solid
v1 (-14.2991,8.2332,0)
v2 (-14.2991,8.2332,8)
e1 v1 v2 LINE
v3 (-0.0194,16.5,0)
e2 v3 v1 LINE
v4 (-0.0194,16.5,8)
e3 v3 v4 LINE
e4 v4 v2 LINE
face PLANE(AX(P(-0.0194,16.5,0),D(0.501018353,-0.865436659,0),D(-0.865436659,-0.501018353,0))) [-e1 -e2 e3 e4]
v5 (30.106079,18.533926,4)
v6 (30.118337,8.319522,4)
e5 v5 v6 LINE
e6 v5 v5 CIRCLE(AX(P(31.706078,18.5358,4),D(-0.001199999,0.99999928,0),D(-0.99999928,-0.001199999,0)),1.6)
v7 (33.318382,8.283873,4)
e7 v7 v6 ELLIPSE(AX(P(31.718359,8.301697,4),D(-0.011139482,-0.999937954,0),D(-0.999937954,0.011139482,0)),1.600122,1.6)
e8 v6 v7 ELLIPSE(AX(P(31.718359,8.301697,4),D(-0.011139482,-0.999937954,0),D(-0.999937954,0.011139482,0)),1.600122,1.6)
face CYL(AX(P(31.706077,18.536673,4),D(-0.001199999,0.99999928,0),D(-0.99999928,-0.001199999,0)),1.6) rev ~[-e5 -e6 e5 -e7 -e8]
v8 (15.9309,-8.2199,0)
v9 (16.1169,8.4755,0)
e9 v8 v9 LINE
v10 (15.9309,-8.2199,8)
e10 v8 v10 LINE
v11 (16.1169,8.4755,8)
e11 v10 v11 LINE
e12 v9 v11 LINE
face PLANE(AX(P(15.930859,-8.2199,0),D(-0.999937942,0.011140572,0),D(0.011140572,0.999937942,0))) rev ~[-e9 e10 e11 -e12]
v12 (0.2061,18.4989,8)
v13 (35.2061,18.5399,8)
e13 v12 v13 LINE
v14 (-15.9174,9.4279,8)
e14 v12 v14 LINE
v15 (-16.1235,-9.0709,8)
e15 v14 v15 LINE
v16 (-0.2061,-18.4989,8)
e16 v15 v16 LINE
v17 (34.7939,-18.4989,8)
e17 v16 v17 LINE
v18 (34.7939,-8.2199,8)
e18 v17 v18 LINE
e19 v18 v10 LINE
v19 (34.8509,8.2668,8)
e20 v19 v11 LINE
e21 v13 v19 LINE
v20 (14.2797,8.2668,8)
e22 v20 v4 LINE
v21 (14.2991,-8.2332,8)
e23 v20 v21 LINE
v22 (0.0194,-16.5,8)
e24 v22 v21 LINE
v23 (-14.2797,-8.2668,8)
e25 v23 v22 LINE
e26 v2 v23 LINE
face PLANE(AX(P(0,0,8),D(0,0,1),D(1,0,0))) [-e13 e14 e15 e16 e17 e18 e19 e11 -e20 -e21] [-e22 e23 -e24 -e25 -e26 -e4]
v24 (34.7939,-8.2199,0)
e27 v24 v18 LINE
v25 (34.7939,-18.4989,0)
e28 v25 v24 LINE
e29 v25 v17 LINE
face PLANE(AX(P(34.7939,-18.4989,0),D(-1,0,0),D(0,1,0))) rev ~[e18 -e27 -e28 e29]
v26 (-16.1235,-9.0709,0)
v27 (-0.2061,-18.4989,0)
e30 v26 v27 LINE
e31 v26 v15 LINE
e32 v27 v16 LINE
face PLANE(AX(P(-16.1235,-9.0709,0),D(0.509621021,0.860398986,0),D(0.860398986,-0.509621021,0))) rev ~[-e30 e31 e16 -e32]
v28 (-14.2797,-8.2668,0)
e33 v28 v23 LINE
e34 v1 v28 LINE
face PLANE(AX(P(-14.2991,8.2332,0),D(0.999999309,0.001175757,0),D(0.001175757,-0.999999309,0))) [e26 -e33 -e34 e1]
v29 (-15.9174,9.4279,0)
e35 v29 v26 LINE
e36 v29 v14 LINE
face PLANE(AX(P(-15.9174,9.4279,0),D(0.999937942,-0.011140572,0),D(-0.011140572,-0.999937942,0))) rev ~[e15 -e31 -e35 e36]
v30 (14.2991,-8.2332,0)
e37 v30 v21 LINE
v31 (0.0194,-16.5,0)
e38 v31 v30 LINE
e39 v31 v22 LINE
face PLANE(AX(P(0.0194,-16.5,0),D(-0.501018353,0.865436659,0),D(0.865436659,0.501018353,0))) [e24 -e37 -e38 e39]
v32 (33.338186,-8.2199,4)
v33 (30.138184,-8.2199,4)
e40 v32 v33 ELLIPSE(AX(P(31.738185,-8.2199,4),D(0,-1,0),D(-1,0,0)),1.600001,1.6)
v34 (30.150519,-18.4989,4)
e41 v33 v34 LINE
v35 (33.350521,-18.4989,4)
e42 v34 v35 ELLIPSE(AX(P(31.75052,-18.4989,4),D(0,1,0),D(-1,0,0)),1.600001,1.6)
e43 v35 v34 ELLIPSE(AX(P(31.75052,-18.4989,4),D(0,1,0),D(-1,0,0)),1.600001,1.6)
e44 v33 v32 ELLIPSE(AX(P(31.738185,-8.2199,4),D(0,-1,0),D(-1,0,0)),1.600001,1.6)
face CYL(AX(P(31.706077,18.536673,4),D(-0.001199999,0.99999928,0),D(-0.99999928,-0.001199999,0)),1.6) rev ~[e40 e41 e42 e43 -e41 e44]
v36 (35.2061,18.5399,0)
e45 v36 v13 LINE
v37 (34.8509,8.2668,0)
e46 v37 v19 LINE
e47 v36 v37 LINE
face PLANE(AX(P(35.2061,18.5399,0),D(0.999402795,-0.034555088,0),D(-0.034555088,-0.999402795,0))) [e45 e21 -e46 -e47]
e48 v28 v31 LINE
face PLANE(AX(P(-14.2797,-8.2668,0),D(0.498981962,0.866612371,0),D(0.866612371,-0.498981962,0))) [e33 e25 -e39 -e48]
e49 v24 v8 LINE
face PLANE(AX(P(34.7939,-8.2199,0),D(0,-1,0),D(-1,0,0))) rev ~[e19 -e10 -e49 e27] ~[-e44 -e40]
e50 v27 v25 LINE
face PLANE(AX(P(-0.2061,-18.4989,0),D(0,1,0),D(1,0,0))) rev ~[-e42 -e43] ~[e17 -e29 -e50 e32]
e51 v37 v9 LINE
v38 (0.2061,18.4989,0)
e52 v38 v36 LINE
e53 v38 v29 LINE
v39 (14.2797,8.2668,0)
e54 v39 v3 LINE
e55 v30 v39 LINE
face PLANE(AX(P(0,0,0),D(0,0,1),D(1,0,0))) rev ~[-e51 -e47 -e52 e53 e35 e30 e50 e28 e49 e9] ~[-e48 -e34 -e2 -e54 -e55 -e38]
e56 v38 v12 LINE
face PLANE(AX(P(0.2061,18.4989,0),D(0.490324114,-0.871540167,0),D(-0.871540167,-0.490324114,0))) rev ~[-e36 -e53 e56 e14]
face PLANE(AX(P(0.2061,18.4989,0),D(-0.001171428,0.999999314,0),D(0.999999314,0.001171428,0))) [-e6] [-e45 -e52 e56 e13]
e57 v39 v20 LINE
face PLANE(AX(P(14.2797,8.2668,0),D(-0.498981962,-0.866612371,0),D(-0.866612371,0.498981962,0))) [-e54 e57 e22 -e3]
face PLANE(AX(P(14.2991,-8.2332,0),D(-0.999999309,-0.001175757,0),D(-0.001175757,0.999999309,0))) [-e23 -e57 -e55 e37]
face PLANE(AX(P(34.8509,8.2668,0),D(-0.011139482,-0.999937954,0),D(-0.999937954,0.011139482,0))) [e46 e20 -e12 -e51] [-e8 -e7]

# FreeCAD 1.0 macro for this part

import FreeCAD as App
import Part
import Sketcher

V = App.Vector
Q = App.Units.Quantity

doc = App.newDocument("Part")
body = doc.addObject("PartDesign::Body", "Body")

sketch1 = doc.addObject("Sketcher::SketchObject", "Sketch")
body.addObject(sketch1)
sketch1.AttachmentSupport = (doc.XY_Plane, [""])
sketch1.MapMode = "FlatFace"
sketch1.addGeometry([
    Part.LineSegment(V(16, -8, 0), V(16, 8, 0)),
    Part.LineSegment(V(16, 8, 0), V(35, 8, 0)),
    Part.LineSegment(V(35, 8, 0), V(35, 19, 0)),
    Part.LineSegment(V(35, 19, 0), V(0, 18, 0)),
    Part.LineSegment(V(0, 18, 0), V(-16, 9, 0)),
    Part.LineSegment(V(-16, 9, 0), V(-16, -9, 0)),
    Part.LineSegment(V(-16, -9, 0), V(0, -18, 0)),
    Part.LineSegment(V(0, -18, 0), V(35, -18, 0)),
    Part.LineSegment(V(35, -18, 0), V(35, -8, 0)),
    Part.LineSegment(V(35, -8, 0), V(16, -8, 0)),
    Part.LineSegment(V(-14, 8, 0), V(0, 16, 0)),
    Part.LineSegment(V(0, 16, 0), V(14, 8, 0)),
    Part.LineSegment(V(14, 8, 0), V(14, -8, 0)),
    Part.LineSegment(V(14, -8, 0), V(0, -16, 0)),
    Part.LineSegment(V(0, -16, 0), V(-14, -8, 0)),
    Part.LineSegment(V(-14, -8, 0), V(-14, 8, 0)),
], False)
sketch1.addConstraint([
    Sketcher.Constraint("Coincident", 0, 2, 1, 1),
    Sketcher.Constraint("Coincident", 1, 2, 2, 1),
    Sketcher.Constraint("Coincident", 2, 2, 3, 1),
    Sketcher.Constraint("Coincident", 3, 2, 4, 1),
    Sketcher.Constraint("Coincident", 4, 2, 5, 1),
    Sketcher.Constraint("Coincident", 5, 2, 6, 1),
    Sketcher.Constraint("Coincident", 6, 2, 7, 1),
    Sketcher.Constraint("Coincident", 7, 2, 8, 1),
    Sketcher.Constraint("Coincident", 8, 2, 9, 1),
    Sketcher.Constraint("Coincident", 9, 2, 0, 1),
    Sketcher.Constraint("Coincident", 10, 2, 11, 1),
    Sketcher.Constraint("Coincident", 11, 2, 12, 1),
    Sketcher.Constraint("Coincident", 12, 2, 13, 1),
    Sketcher.Constraint("Coincident", 13, 2, 14, 1),
    Sketcher.Constraint("Coincident", 14, 2, 15, 1),
    Sketcher.Constraint("Coincident", 15, 2, 10, 1),
    Sketcher.Constraint("Horizontal", 7),
    Sketcher.Constraint("Vertical", 8),
    Sketcher.Constraint("Horizontal", 9),
    Sketcher.Constraint("Symmetric", 3, 2, 6, 2, -1, 1),
    Sketcher.Constraint("Symmetric", 10, 2, 13, 2, -1, 1),
    Sketcher.Constraint("Symmetric", 11, 2, 14, 2, -1, 1),
    Sketcher.Constraint("Symmetric", 12, 2, 15, 2, -1, 1),
    Sketcher.Constraint("Perpendicular", 0, 1),
    Sketcher.Constraint("Perpendicular", 1, 5),
    Sketcher.Constraint("Perpendicular", 3, 12),
    Sketcher.Constraint("Horizontal", 1, 2, 11, 2),
    Sketcher.Constraint("Equal", 4, 5),
    Sketcher.Constraint("Equal", 5, 6),
    Sketcher.Constraint("Equal", 10, 11),
    Sketcher.Constraint("Equal", 11, 12),
    Sketcher.Constraint("DistanceX", 7, 1, 7, 2, 35.0),
    Sketcher.Constraint("Distance", 3, 35.0),
    Sketcher.Constraint("Distance", 4, 18.5),
    Sketcher.Constraint("Distance", 10, 16.5),
    Sketcher.Constraint("DistanceY", -1, 1, 10, 2, 16.5),
    Sketcher.Constraint("DistanceY", 8, 1, 8, 2, 10.279),
    Sketcher.Constraint("Distance", 2, 10.2792),
    Sketcher.Constraint("Angle", 2, Q("88.0197 deg")),
    Sketcher.Constraint("DistanceX", 9, 2, 9, 1, 18.863),
    Sketcher.Constraint("DistanceY", -1, 1, 2, 2, 18.54),
    Sketcher.Constraint("DistanceY", 8, 2, -1, 1, 8.22),
    Sketcher.Constraint("DistanceX", 9, 2, 1, 2, 18.92),
    Sketcher.Constraint("DistanceY", -1, 1, 4, 2, 9.428),
])
pad1 = doc.addObject("PartDesign::Pad", "Pad")
body.addObject(pad1)
pad1.Profile = sketch1
pad1.Length = 8

sketch2 = doc.addObject("Sketcher::SketchObject", "Sketch001")
body.addObject(sketch2)
sketch2.Placement = App.Placement(V(-0.0217, 18.4986, 0), App.Rotation(V(-0.99999928, -0.001199999, 0), V(0, 0, 1), V(-0.001199999, 0.99999928, 0), "ZXY"))
sketch2.addGeometry(Part.Circle(V(-31.7, 4, 0), V(0, 0, 1), 1.6), False)
sketch2.addConstraint([
    Sketcher.Constraint("Diameter", 0, 3.2),
    Sketcher.Constraint("DistanceY", -1, 1, 0, 3, 4.0),
    Sketcher.Constraint("DistanceX", 0, 3, -1, 1, 31.7278),
])
pocket1 = doc.addObject("PartDesign::Pocket", "Pocket")
body.addObject(pocket1)
pocket1.Profile = sketch2
pocket1.Length = 120

doc.recompute()
